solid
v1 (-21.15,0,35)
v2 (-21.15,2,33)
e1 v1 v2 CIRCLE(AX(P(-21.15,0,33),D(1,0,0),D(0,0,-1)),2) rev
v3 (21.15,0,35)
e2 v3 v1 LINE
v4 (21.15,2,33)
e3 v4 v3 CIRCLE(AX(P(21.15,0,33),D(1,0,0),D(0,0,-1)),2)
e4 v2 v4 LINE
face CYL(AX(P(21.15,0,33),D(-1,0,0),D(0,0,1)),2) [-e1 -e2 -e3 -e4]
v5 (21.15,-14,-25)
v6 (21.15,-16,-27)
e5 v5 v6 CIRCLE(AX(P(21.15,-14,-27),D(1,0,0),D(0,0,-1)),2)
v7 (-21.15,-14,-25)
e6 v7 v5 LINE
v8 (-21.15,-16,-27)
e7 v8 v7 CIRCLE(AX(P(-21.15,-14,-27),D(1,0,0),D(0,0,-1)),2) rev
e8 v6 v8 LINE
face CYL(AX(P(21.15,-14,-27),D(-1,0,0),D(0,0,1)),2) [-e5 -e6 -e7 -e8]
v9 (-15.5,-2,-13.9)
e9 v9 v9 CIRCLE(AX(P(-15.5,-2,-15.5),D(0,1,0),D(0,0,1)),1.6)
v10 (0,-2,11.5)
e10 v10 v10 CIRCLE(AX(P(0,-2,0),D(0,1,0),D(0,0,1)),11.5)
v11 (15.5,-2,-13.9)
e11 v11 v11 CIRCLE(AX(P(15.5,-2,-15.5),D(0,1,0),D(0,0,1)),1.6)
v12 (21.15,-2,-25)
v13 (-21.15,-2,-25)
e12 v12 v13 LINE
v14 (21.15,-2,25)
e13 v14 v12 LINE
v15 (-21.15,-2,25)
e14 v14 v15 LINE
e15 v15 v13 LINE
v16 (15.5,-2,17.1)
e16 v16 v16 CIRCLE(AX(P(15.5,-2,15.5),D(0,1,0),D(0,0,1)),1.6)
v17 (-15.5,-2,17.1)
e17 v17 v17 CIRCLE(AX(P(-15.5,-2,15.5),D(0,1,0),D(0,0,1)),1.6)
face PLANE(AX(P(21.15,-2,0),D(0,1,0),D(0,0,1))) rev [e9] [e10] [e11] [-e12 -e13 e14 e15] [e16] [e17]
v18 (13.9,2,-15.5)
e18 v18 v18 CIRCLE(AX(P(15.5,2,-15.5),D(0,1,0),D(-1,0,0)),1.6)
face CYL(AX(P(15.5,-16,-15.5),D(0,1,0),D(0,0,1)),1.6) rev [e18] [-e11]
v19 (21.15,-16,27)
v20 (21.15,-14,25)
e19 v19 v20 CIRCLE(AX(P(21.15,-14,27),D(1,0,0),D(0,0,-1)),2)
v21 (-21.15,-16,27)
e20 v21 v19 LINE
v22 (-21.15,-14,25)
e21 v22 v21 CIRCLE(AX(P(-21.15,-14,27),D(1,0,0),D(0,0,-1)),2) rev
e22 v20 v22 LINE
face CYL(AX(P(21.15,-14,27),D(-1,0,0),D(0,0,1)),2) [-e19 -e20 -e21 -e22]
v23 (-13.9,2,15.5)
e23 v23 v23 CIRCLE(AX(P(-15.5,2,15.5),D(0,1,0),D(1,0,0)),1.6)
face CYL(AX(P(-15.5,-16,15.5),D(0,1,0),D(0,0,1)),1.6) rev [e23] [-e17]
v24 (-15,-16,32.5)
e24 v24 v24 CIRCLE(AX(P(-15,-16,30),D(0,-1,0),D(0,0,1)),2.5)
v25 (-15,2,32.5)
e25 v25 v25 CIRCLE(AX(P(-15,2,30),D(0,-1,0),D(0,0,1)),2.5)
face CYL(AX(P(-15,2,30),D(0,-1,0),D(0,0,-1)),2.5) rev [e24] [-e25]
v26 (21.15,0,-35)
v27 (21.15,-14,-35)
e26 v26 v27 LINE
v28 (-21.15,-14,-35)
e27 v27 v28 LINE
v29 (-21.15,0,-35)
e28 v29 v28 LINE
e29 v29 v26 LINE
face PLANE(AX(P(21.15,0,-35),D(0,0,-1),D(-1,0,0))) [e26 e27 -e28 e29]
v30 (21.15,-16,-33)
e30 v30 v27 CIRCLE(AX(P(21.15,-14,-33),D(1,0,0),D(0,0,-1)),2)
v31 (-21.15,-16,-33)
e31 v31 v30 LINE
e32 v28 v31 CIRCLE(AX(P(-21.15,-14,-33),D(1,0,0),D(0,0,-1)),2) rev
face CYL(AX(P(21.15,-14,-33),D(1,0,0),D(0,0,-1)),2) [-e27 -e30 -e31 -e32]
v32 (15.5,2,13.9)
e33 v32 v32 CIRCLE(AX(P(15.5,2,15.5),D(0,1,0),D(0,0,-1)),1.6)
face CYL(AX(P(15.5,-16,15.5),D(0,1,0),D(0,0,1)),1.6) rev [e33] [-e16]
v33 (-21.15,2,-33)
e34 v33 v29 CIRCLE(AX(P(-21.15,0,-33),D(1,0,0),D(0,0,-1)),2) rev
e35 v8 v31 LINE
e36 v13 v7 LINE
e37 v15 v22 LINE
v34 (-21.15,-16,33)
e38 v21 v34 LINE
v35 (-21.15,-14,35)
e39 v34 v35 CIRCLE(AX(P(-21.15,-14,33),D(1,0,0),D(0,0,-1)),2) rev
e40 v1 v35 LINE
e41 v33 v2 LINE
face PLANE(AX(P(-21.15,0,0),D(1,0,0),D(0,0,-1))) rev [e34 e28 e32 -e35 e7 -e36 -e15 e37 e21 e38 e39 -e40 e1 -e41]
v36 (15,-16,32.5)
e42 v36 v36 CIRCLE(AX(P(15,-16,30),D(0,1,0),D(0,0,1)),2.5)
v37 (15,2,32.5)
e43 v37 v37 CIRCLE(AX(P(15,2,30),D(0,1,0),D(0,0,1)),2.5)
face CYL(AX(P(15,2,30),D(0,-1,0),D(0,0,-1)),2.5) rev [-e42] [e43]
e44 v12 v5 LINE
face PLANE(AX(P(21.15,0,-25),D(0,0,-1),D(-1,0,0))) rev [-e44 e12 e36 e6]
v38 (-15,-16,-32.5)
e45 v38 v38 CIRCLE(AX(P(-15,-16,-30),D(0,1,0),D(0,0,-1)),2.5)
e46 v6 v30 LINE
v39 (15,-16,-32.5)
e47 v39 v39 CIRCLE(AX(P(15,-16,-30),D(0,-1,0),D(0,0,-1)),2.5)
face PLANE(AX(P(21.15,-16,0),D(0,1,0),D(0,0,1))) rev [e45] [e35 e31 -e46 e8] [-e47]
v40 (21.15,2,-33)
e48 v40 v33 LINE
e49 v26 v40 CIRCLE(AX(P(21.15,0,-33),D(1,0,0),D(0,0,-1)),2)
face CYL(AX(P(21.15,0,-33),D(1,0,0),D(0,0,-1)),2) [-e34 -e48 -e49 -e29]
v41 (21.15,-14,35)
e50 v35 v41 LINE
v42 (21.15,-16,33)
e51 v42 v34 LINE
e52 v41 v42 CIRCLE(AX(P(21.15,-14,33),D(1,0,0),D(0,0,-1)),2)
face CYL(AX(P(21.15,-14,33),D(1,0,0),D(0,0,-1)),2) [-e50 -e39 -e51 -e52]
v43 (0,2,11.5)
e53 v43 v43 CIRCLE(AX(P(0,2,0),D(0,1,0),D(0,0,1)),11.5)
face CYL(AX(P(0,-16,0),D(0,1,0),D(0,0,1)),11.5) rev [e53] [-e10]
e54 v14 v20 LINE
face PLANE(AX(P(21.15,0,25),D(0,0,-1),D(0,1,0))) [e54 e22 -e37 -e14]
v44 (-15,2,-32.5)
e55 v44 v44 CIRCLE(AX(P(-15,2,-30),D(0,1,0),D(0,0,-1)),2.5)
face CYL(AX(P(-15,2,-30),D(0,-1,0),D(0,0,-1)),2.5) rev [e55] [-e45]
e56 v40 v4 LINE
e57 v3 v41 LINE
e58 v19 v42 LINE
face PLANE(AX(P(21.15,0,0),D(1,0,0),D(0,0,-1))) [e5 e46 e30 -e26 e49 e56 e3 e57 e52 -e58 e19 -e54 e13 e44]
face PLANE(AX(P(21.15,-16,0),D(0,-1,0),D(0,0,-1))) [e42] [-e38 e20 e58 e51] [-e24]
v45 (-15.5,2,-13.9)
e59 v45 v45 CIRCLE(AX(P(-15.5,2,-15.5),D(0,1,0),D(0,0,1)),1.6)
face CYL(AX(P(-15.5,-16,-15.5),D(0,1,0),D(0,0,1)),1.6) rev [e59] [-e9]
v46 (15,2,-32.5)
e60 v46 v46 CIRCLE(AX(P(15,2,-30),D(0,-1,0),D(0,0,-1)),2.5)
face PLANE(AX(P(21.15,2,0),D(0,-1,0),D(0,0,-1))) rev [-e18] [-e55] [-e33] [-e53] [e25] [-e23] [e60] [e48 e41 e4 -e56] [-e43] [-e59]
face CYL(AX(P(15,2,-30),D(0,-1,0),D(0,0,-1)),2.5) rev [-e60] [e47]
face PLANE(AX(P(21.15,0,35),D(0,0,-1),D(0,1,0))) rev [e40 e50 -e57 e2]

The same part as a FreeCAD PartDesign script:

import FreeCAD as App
import Part
import Sketcher


def edges_at(feature, points):
    """Names of the edges that pass closest to the given points."""
    edges = feature.Shape.Edges
    near = lambda p: min(range(len(edges)), key=lambda i: edges[i].distToShape(Part.Vertex(*p))[0])
    return sorted({f"Edge{near(p) + 1}" for p in points})


def add_polygon(sketch, points):
    """Adds a closed chain of lines whose ends are joined by coincident constraints."""
    first, n = sketch.GeometryCount, len(points)
    for a, b in zip(points, points[1:] + points[:1]):
        sketch.addGeometry(Part.LineSegment(App.Vector(*a, 0), App.Vector(*b, 0)), False)
    for i in range(n):
        sketch.addConstraint(Sketcher.Constraint("Coincident", first + i, 2, first + (i + 1) % n, 1))

doc = App.newDocument("Part")
params = doc.addObject("Spreadsheet::Sheet", "Params")
for row, (alias, value) in enumerate([
    ("sketch1_width", "18 mm"),
    ("sketch1_width2", "14 mm"),
    ("sketch1_height", "10 mm"),
    ("sketch1_height2", "50 mm"),
    ("pad1_length", "42.3 mm"),
    ("sketch2_diameter", "23 mm"),
    ("sketch3_diameter", "3.2 mm"),
    ("sketch4_diameter", "5 mm"),
    ("sketch5_diameter", "5 mm"),
    ("fillet_radius", "2 mm"),
], start=1):
    params.set(f"A{row}", alias)
    params.set(f"B{row}", "=" + value)
    params.setAlias(f"B{row}", alias)

body = doc.addObject("PartDesign::Body", "Body")

sketch1 = body.newObject("Sketcher::SketchObject", "Sketch")
sketch1.AttachmentSupport = (doc.getObject("YZ_Plane"), [""])
sketch1.MapMode = "FlatFace"
add_polygon(sketch1, [(2, 35), (-16, 35), (-16, 25), (-2, 25), (-2, -25), (-16, -25), (-16, -35), (2, -35)])
sketch1.addConstraint(Sketcher.Constraint("Horizontal", 0))
sketch1.addConstraint(Sketcher.Constraint("Vertical", 1))
sketch1.addConstraint(Sketcher.Constraint("Horizontal", 2))
sketch1.addConstraint(Sketcher.Constraint("Vertical", 3))
sketch1.addConstraint(Sketcher.Constraint("Horizontal", 4))
sketch1.addConstraint(Sketcher.Constraint("Vertical", 5))
sketch1.addConstraint(Sketcher.Constraint("Horizontal", 6))
sketch1.addConstraint(Sketcher.Constraint("Vertical", 7))
sketch1.addConstraint(Sketcher.Constraint("Symmetric", 1, 2, 4, 2, -1))
sketch1.addConstraint(Sketcher.Constraint("Equal", 1, 5))
sketch1.addConstraint(Sketcher.Constraint("DistanceX", 0, 2, 0, 1, 18.0))
sketch1.addConstraint(Sketcher.Constraint("DistanceX", 2, 1, 2, 2, 14.0))
sketch1.addConstraint(Sketcher.Constraint("DistanceY", 1, 2, 1, 1, 10.0))
sketch1.addConstraint(Sketcher.Constraint("DistanceY", 3, 2, 3, 1, 50.0))
sketch1.addConstraint(Sketcher.Constraint("DistanceX", 0, 2, -1, 1, 16.0))
sketch1.setExpression("Constraints[18]", "Params.sketch1_width")
sketch1.setExpression("Constraints[19]", "Params.sketch1_width2")
sketch1.setExpression("Constraints[20]", "Params.sketch1_height")
sketch1.setExpression("Constraints[21]", "Params.sketch1_height2")
pad1 = body.newObject("PartDesign::Pad", "Pad")
pad1.Profile = sketch1
pad1.setExpression("Length", "Params.pad1_length")
pad1.Midplane = True

sketch2 = body.newObject("Sketcher::SketchObject", "Sketch001")
sketch2.AttachmentSupport = (doc.getObject("XZ_Plane"), [""])
sketch2.MapMode = "FlatFace"
sketch2.AttachmentOffset = App.Placement(App.Vector(0, 0, -2), App.Rotation())
sketch2.addGeometry(Part.Circle(App.Vector(0, 0, 0), App.Vector(0, 0, 1), 12), False)
sketch2.addConstraint(Sketcher.Constraint("Coincident", 0, 3, -1, 1))
sketch2.addConstraint(Sketcher.Constraint("Diameter", 0, 23.0))
sketch2.setExpression("Constraints[1]", "Params.sketch2_diameter")
pocket1 = body.newObject("PartDesign::Pocket", "Pocket")
pocket1.Profile = sketch2
pocket1.Type = "ThroughAll"
pocket1.Reversed = True

sketch3 = body.newObject("Sketcher::SketchObject", "Sketch002")
sketch3.AttachmentSupport = (doc.getObject("XZ_Plane"), [""])
sketch3.MapMode = "FlatFace"
sketch3.AttachmentOffset = App.Placement(App.Vector(0, 0, -2), App.Rotation())
sketch3.addGeometry(Part.Circle(App.Vector(-15.5, -15.5, 0), App.Vector(0, 0, 1), 1.6), False)
sketch3.addConstraint(Sketcher.Constraint("Diameter", 0, 3.2))
sketch3.addConstraint(Sketcher.Constraint("DistanceX", 0, 3, -1, 1, 15.5))
sketch3.addConstraint(Sketcher.Constraint("DistanceY", 0, 3, -1, 1, 15.5))
sketch3.setExpression("Constraints[0]", "Params.sketch3_diameter")
pocket2 = body.newObject("PartDesign::Pocket", "Pocket001")
pocket2.Profile = sketch3
pocket2.Type = "ThroughAll"
pocket2.Reversed = True
doc.recompute()

polarpattern = body.newObject("PartDesign::PolarPattern", "PolarPattern")
polarpattern.Originals = [pocket2]
polarpattern.Axis = (doc.getObject("Y_Axis"), [""])
polarpattern.Angle = 360
polarpattern.Occurrences = 4
body.Tip = polarpattern

sketch4 = body.newObject("Sketcher::SketchObject", "Sketch003")
sketch4.AttachmentSupport = (doc.getObject("XZ_Plane"), [""])
sketch4.MapMode = "FlatFace"
sketch4.AttachmentOffset = App.Placement(App.Vector(0, 0, 16), App.Rotation())
sketch4.addGeometry(Part.Circle(App.Vector(15, -30, 0), App.Vector(0, 0, 1), 2.5), False)
sketch4.addConstraint(Sketcher.Constraint("Diameter", 0, 5.0))
sketch4.addConstraint(Sketcher.Constraint("DistanceX", -1, 1, 0, 3, 15.0))
sketch4.addConstraint(Sketcher.Constraint("DistanceY", 0, 3, -1, 1, 30.0))
sketch4.setExpression("Constraints[0]", "Params.sketch4_diameter")
pocket3 = body.newObject("PartDesign::Pocket", "Pocket002")
pocket3.Profile = sketch4
pocket3.Type = "ThroughAll"
doc.recompute()

mirrored = body.newObject("PartDesign::Mirrored", "Mirrored")
mirrored.Originals = [pocket3]
mirrored.MirrorPlane = (doc.getObject("YZ_Plane"), [""])
body.Tip = mirrored
doc.recompute()

mirrored2 = body.newObject("PartDesign::Mirrored", "Mirrored001")
mirrored2.Originals = [pocket3]
mirrored2.MirrorPlane = (doc.getObject("XY_Plane"), [""])
body.Tip = mirrored2

sketch5 = body.newObject("Sketcher::SketchObject", "Sketch004")
sketch5.AttachmentSupport = (doc.getObject("XZ_Plane"), [""])
sketch5.MapMode = "FlatFace"
sketch5.AttachmentOffset = App.Placement(App.Vector(0, 0, 16), App.Rotation())
sketch5.addGeometry(Part.Circle(App.Vector(-15, 30, 0), App.Vector(0, 0, 1), 2.5), False)
sketch5.addConstraint(Sketcher.Constraint("Diameter", 0, 5.0))
sketch5.addConstraint(Sketcher.Constraint("DistanceX", 0, 3, -1, 1, 15.0))
sketch5.addConstraint(Sketcher.Constraint("DistanceY", -1, 1, 0, 3, 30.0))
sketch5.setExpression("Constraints[0]", "Params.sketch5_diameter")
pocket4 = body.newObject("PartDesign::Pocket", "Pocket003")
pocket4.Profile = sketch5
pocket4.Type = "ThroughAll"
doc.recompute()

fillet = body.newObject("PartDesign::Fillet", "Fillet")
fillet.Base = (pocket4, edges_at(pocket4, [
    (0, 2, -35),
    (0, -16, -35),
    (0, -16, -25),
    (0, -16, 25),
    (0, -16, 35),
    (0, 2, 35),
]))
fillet.setExpression("Radius", "Params.fillet_radius")

doc.recompute()
